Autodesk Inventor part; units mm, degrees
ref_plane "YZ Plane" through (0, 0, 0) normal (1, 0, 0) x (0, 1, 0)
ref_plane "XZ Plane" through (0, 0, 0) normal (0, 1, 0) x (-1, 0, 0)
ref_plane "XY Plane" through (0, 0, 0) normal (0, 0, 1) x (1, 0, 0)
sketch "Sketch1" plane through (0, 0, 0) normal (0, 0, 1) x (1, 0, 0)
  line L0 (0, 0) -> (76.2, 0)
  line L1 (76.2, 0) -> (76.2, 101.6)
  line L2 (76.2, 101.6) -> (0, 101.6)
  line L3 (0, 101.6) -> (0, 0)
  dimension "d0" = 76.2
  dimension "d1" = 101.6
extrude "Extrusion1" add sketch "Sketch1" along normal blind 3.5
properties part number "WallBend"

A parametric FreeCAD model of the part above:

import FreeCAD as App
import Part
import Sketcher
from FreeCAD import Vector
Q = App.Units.Quantity


def add_polygon(sketch, points):
    """Adds a closed chain of lines whose ends are joined by coincident constraints."""
    first, n = sketch.GeometryCount, len(points)
    for a, b in zip(points, points[1:] + points[:1]):
        sketch.addGeometry(Part.LineSegment(App.Vector(*a, 0), App.Vector(*b, 0)), False)
    for i in range(n):
        sketch.addConstraint(Sketcher.Constraint("Coincident", first + i, 2, first + (i + 1) % n, 1))

doc = App.newDocument("Part")
body = doc.addObject("PartDesign::Body", "Body")

# Sketch on XY plane
sketch1 = body.newObject("Sketcher::SketchObject", "Sketch")
sketch1.AttachmentSupport = (doc.getObject("XY_Plane"), [""])
sketch1.MapMode = "FlatFace"
add_polygon(sketch1, [(0, 102), (0, 0), (76, 0), (76, 102)])  # lines 0-3
sketch1.addConstraint(Sketcher.Constraint("Vertical", 0))
sketch1.addConstraint(Sketcher.Constraint("Horizontal", 1))
sketch1.addConstraint(Sketcher.Constraint("Vertical", 2))
sketch1.addConstraint(Sketcher.Constraint("Horizontal", 3))
sketch1.addConstraint(Sketcher.Constraint("Coincident", 0, 2, -1, 1))
sketch1.addConstraint(Sketcher.Constraint("DistanceX", 1, 1, 1, 2, Q("3 in")))
sketch1.addConstraint(Sketcher.Constraint("DistanceY", 0, 2, 0, 1, Q("4 in")))
pad1 = body.newObject("PartDesign::Pad", "Pad")
pad1.Profile = sketch1
pad1.Length = Q("0.1377953 in")

doc.recompute()
